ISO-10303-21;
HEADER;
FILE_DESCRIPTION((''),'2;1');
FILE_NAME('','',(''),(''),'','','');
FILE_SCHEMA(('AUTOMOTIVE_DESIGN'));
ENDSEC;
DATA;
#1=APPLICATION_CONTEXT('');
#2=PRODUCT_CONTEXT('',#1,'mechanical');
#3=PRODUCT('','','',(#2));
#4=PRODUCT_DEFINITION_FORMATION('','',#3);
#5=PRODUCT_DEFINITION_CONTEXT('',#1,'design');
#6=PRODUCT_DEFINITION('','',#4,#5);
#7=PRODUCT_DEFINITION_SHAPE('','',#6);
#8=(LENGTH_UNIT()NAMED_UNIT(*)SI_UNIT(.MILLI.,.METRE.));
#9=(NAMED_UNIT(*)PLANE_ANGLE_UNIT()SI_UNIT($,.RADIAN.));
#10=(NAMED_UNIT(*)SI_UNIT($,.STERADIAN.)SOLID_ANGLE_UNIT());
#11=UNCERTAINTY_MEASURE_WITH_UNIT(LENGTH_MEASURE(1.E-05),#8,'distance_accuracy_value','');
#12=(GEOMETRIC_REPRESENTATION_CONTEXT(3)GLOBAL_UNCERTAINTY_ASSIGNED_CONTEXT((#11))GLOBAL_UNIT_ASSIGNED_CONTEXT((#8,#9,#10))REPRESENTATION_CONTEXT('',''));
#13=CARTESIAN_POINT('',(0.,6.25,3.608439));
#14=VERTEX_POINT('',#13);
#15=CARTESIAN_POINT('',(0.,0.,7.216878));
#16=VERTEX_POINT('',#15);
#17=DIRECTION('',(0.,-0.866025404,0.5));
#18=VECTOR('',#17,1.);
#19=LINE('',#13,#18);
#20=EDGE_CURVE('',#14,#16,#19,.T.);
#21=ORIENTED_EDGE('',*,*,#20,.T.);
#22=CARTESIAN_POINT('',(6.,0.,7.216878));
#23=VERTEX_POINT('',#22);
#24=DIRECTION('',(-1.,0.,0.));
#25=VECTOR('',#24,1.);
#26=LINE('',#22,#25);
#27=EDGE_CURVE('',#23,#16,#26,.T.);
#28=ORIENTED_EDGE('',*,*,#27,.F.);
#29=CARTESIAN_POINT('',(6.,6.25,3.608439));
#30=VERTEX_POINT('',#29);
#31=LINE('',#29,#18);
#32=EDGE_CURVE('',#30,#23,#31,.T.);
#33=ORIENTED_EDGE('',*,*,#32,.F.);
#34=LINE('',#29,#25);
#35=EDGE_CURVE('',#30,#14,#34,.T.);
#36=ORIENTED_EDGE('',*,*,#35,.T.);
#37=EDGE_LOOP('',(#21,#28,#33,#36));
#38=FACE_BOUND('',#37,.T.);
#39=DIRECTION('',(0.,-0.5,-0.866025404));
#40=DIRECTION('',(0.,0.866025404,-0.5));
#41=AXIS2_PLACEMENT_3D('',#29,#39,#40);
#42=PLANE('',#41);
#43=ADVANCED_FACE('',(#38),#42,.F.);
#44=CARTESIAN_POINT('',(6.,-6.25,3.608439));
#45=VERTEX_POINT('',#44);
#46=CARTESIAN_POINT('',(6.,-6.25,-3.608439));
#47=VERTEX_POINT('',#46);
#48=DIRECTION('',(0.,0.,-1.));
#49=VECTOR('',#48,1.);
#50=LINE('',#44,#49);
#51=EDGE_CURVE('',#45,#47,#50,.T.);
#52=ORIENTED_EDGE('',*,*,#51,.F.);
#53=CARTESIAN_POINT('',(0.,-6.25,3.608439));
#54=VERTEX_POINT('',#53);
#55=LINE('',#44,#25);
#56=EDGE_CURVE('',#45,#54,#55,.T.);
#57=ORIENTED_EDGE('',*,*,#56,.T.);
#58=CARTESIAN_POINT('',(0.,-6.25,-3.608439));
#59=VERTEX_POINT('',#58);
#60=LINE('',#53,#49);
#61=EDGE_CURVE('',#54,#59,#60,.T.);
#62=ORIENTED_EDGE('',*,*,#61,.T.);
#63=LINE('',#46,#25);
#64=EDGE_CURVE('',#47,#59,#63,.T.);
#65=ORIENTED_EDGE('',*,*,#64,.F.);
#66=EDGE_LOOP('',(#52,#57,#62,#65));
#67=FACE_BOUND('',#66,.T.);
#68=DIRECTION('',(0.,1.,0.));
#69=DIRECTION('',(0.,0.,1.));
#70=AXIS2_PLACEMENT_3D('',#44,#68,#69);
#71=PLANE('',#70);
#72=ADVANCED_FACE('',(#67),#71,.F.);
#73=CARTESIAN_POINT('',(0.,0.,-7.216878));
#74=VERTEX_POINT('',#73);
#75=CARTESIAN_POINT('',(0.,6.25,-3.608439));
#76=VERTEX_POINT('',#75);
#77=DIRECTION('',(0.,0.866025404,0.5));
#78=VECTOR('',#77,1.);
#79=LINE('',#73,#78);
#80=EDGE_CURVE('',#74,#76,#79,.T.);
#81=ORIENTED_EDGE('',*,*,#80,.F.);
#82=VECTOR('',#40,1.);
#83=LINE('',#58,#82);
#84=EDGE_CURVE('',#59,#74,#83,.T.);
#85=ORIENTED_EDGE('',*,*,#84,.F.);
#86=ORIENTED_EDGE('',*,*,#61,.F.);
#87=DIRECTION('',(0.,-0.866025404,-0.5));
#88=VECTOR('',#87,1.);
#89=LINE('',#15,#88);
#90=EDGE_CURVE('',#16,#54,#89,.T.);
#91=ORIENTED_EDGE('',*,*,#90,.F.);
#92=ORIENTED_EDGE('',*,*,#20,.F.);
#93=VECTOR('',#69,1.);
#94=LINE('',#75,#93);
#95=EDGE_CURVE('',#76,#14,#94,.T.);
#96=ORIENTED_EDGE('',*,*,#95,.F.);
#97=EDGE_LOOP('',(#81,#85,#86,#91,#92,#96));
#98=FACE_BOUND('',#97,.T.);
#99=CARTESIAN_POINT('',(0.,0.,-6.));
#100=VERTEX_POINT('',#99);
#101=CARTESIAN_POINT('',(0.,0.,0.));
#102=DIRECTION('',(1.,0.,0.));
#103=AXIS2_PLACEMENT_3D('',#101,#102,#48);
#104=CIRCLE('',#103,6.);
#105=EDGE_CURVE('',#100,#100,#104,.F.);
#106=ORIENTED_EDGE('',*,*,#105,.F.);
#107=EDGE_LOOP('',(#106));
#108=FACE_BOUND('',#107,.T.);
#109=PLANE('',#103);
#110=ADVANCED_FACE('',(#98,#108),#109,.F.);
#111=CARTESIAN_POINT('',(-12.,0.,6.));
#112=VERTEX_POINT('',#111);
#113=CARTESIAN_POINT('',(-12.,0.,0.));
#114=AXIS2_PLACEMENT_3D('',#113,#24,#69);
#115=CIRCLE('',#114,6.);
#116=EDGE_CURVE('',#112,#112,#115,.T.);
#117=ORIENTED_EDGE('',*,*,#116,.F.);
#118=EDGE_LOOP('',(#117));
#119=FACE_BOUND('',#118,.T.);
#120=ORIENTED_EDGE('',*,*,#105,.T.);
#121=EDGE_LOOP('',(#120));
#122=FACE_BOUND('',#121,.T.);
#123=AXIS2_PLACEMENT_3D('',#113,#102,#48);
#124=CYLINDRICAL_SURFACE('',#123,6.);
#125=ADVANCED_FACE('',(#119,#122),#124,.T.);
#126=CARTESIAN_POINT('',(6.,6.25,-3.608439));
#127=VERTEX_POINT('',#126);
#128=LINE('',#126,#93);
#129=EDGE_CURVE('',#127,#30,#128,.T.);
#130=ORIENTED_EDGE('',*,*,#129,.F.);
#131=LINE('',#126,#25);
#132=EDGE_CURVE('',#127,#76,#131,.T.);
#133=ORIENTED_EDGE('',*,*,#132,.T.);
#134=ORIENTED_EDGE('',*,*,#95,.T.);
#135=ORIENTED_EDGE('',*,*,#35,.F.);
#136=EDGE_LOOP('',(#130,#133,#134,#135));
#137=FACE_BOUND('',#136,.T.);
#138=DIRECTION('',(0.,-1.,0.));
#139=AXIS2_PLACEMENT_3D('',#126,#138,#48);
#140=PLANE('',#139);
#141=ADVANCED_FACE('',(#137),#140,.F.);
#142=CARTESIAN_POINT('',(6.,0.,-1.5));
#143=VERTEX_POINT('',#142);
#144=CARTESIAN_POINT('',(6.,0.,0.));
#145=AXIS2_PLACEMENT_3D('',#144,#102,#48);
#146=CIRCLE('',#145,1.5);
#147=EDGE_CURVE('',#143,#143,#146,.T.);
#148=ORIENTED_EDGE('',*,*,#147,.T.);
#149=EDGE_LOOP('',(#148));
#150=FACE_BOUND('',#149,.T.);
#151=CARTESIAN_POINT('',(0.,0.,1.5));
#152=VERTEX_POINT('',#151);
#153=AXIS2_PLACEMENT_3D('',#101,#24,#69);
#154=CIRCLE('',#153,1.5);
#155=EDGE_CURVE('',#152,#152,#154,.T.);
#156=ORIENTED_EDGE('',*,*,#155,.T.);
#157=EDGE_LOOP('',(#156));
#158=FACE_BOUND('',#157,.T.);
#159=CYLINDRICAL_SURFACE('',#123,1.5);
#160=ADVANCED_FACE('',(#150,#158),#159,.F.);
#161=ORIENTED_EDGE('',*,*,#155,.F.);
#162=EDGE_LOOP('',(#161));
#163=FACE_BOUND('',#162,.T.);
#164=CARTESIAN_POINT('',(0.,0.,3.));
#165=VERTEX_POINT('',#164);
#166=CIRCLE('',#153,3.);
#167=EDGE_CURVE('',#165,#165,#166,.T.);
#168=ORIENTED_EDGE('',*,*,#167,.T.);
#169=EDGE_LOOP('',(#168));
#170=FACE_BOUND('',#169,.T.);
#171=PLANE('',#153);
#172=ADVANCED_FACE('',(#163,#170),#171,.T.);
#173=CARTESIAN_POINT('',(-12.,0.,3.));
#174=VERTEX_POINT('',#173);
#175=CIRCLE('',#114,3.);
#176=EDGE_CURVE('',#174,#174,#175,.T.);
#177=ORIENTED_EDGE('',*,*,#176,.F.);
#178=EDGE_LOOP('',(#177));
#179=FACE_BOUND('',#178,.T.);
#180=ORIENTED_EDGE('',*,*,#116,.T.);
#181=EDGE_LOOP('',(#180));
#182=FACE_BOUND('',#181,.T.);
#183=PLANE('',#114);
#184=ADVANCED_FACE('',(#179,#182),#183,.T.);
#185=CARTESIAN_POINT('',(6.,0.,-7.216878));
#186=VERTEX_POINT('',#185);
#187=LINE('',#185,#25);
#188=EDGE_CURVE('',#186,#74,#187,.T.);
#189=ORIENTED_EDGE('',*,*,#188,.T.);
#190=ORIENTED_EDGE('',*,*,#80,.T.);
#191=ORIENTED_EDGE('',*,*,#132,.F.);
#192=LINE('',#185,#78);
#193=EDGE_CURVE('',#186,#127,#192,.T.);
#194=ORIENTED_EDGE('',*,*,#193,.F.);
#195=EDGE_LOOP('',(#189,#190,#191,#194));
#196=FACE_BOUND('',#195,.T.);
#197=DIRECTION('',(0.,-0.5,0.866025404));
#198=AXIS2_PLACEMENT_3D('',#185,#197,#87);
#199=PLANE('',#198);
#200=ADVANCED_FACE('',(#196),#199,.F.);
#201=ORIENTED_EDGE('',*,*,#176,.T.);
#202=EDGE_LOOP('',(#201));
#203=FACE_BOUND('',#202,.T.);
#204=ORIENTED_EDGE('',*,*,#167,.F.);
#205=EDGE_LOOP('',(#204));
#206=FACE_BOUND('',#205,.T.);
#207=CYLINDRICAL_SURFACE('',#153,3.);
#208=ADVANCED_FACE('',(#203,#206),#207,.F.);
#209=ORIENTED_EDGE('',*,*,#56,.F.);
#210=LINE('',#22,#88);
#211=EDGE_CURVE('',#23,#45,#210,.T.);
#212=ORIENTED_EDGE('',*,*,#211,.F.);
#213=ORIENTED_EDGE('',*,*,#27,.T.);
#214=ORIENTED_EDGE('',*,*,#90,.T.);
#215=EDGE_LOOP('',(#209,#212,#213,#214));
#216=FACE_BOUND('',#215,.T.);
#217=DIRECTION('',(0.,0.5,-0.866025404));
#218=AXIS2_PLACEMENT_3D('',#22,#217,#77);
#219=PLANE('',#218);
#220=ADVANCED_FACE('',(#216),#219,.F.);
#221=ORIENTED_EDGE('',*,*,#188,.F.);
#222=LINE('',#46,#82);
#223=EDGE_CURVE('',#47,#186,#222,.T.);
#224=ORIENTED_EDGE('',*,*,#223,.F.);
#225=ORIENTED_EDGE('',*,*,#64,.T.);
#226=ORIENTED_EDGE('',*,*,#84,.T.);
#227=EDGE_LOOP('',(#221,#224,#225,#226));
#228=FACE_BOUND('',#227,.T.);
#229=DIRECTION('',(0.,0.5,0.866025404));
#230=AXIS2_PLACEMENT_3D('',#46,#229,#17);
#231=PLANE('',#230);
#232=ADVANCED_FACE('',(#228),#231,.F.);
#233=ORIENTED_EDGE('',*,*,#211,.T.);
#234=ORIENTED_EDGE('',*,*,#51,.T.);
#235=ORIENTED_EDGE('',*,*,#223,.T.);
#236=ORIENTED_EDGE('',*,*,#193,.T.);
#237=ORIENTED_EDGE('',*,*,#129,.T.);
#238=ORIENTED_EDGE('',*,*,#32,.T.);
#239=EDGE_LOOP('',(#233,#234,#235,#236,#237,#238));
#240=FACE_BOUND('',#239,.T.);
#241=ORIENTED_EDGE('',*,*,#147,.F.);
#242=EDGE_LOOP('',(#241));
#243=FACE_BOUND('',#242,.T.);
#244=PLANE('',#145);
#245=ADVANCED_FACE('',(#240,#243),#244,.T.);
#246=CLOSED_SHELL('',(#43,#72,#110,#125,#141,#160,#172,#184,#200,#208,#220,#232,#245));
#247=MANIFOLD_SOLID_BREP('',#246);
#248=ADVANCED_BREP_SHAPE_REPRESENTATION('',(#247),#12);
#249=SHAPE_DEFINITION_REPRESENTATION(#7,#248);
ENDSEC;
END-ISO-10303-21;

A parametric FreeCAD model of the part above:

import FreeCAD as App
import Part
import Sketcher

V = App.Vector
Q = App.Units.Quantity

doc = App.newDocument("Part")
body = doc.addObject("PartDesign::Body", "Body")

sketch1 = body.newObject("Sketcher::SketchObject", "Sketch")
sketch1.AttachmentSupport = (doc.getObject("YZ_Plane"), [""])
sketch1.MapMode = "FlatFace"
sketch1.addGeometry(Part.LineSegment(V(0, -7, 0), V(6, -4, 0)), False)
sketch1.addGeometry(Part.LineSegment(V(6, -4, 0), V(6, 4, 0)), False)
sketch1.addGeometry(Part.LineSegment(V(6, 4, 0), V(0, 7, 0)), False)
sketch1.addGeometry(Part.LineSegment(V(0, 7, 0), V(-6, 4, 0)), False)
sketch1.addGeometry(Part.LineSegment(V(-6, 4, 0), V(-6, -4, 0)), False)
sketch1.addGeometry(Part.LineSegment(V(-6, -4, 0), V(0, -7, 0)), False)
sketch1.addConstraint(Sketcher.Constraint("Coincident", 0, 2, 1, 1))
sketch1.addConstraint(Sketcher.Constraint("Coincident", 1, 2, 2, 1))
sketch1.addConstraint(Sketcher.Constraint("Coincident", 2, 2, 3, 1))
sketch1.addConstraint(Sketcher.Constraint("Coincident", 3, 2, 4, 1))
sketch1.addConstraint(Sketcher.Constraint("Coincident", 4, 2, 5, 1))
sketch1.addConstraint(Sketcher.Constraint("Coincident", 5, 2, 0, 1))
sketch1.addConstraint(Sketcher.Constraint("Vertical", 1))
sketch1.addConstraint(Sketcher.Constraint("Vertical", 4))
sketch1.addConstraint(Sketcher.Constraint("Symmetric", 0, 2, 3, 2, -1, 1))
sketch1.addConstraint(Sketcher.Constraint("Symmetric", 2, 2, 5, 2, -1, 1))
sketch1.addConstraint(Sketcher.Constraint("PointOnObject", 2, 2, -2))
sketch1.addConstraint(Sketcher.Constraint("Parallel", 2, 5))
sketch1.addConstraint(Sketcher.Constraint("Horizontal", 1, 2, 3, 2))
sketch1.addConstraint(Sketcher.Constraint("Angle", 0, Q("30 deg")))
sketch1.addConstraint(Sketcher.Constraint("DistanceX", 3, 2, 1, 2, 12.5))
sketch1.addConstraint(Sketcher.Constraint("DistanceY", 1, 1, 1, 2, 7.216878))
pad1 = body.newObject("PartDesign::Pad", "Pad")
pad1.Profile = sketch1
pad1.Length = 6

sketch2 = body.newObject("Sketcher::SketchObject", "Sketch001")
sketch2.AttachmentSupport = (doc.getObject("YZ_Plane"), [""])
sketch2.MapMode = "FlatFace"
sketch2.addGeometry(Part.Circle(V(0, 0, 0), V(0, 0, 1), 6), False)
sketch2.addConstraint(Sketcher.Constraint("Coincident", 0, 3, -1, 1))
sketch2.addConstraint(Sketcher.Constraint("Diameter", 0, 12.0))
pad2 = body.newObject("PartDesign::Pad", "Pad001")
pad2.Profile = sketch2
pad2.Length = 12
pad2.Reversed = True

sketch3 = body.newObject("Sketcher::SketchObject", "Sketch002")
sketch3.AttachmentSupport = (doc.getObject("YZ_Plane"), [""])
sketch3.MapMode = "FlatFace"
sketch3.AttachmentOffset = App.Placement(V(0, 0, -12), App.Rotation())
sketch3.addGeometry(Part.Circle(V(0, 0, 0), V(0, 0, 1), 3), False)
sketch3.addConstraint(Sketcher.Constraint("Coincident", 0, 3, -1, 1))
sketch3.addConstraint(Sketcher.Constraint("Diameter", 0, 6.0))
pocket1 = body.newObject("PartDesign::Pocket", "Pocket")
pocket1.Profile = sketch3
pocket1.Length = 12
pocket1.Reversed = True

sketch4 = body.newObject("Sketcher::SketchObject", "Sketch003")
sketch4.AttachmentSupport = (doc.getObject("YZ_Plane"), [""])
sketch4.MapMode = "FlatFace"
sketch4.AttachmentOffset = App.Placement(V(0, 0, 6), App.Rotation())
sketch4.addGeometry(Part.Circle(V(0, 0, 0), V(0, 0, 1), 1.5), False)
sketch4.addConstraint(Sketcher.Constraint("Coincident", 0, 3, -1, 1))
sketch4.addConstraint(Sketcher.Constraint("Diameter", 0, 3.0))
pocket2 = body.newObject("PartDesign::Pocket", "Pocket001")
pocket2.Profile = sketch4
pocket2.Type = "ThroughAll"

doc.recompute()
